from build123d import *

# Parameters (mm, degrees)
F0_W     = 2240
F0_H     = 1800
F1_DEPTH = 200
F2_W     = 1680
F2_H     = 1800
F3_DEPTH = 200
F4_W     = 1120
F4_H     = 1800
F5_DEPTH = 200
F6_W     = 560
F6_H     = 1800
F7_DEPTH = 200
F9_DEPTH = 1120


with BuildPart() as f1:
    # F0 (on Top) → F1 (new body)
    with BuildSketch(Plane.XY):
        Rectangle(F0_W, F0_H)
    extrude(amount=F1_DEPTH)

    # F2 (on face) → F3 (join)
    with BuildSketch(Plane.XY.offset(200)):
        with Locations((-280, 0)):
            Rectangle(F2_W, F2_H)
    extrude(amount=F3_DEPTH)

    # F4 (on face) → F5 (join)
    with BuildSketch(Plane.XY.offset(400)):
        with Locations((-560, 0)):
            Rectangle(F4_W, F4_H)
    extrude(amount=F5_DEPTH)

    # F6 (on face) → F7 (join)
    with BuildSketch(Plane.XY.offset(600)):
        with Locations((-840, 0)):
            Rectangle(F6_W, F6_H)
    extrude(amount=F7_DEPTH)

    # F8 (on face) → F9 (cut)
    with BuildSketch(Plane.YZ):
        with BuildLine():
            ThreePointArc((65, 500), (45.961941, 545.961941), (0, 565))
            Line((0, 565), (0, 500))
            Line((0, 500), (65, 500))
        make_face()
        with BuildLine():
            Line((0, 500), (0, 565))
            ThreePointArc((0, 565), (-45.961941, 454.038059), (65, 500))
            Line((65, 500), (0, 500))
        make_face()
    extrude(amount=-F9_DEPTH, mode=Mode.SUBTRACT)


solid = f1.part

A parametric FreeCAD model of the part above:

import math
import FreeCAD as App
import Part
import Sketcher

V = App.Vector


def add_polygon(sketch, points):
    """Adds a closed chain of lines whose ends are joined by coincident constraints."""
    first, n = sketch.GeometryCount, len(points)
    for a, b in zip(points, points[1:] + points[:1]):
        sketch.addGeometry(Part.LineSegment(App.Vector(*a, 0), App.Vector(*b, 0)), False)
    for i in range(n):
        sketch.addConstraint(Sketcher.Constraint("Coincident", first + i, 2, first + (i + 1) % n, 1))

doc = App.newDocument("Part")
body = doc.addObject("PartDesign::Body", "Body")

sketch1 = doc.addObject("Sketcher::SketchObject", "Sketch")
body.addObject(sketch1)
sketch1.AttachmentSupport = (doc.XY_Plane, [""])
sketch1.MapMode = "FlatFace"
add_polygon(sketch1, [(-1120, 900), (-1120, -900), (1120, -900), (1120, 900)])
sketch1.addConstraint([
    Sketcher.Constraint("Vertical", 0),
    Sketcher.Constraint("Horizontal", 1),
    Sketcher.Constraint("Vertical", 2),
    Sketcher.Constraint("Horizontal", 3),
    Sketcher.Constraint("Symmetric", 0, 2, 2, 2, -1, 1),
    Sketcher.Constraint("DistanceX", 1, 1, 1, 2, 2240.0),
    Sketcher.Constraint("DistanceY", 0, 2, 0, 1, 1800.0),
])
pad1 = doc.addObject("PartDesign::Pad", "Pad")
body.addObject(pad1)
pad1.Profile = sketch1
pad1.Length = 200

sketch2 = doc.addObject("Sketcher::SketchObject", "Sketch001")
body.addObject(sketch2)
sketch2.AttachmentSupport = (doc.XY_Plane, [""])
sketch2.MapMode = "FlatFace"
sketch2.AttachmentOffset = App.Placement(V(0, 0, 200), App.Rotation())
add_polygon(sketch2, [(-1120, 900), (-1120, -900), (560, -900), (560, 900)])
sketch2.addConstraint([
    Sketcher.Constraint("Vertical", 0),
    Sketcher.Constraint("Horizontal", 1),
    Sketcher.Constraint("Vertical", 2),
    Sketcher.Constraint("Horizontal", 3),
    Sketcher.Constraint("DistanceX", 1, 1, 1, 2, 1680.0),
    Sketcher.Constraint("DistanceY", 0, 2, 0, 1, 1800.0),
    Sketcher.Constraint("DistanceX", 0, 2, -1, 1, 1120.0),
    Sketcher.Constraint("DistanceY", 0, 2, -1, 1, 900.0),
])
pad2 = doc.addObject("PartDesign::Pad", "Pad001")
body.addObject(pad2)
pad2.Profile = sketch2
pad2.Length = 200

sketch3 = doc.addObject("Sketcher::SketchObject", "Sketch002")
body.addObject(sketch3)
sketch3.AttachmentSupport = (doc.XY_Plane, [""])
sketch3.MapMode = "FlatFace"
sketch3.AttachmentOffset = App.Placement(V(0, 0, 400), App.Rotation())
add_polygon(sketch3, [(-1120, 900), (-1120, -900), (0, -900), (0, 900)])
sketch3.addConstraint([
    Sketcher.Constraint("Vertical", 0),
    Sketcher.Constraint("Horizontal", 1),
    Sketcher.Constraint("Vertical", 2),
    Sketcher.Constraint("Horizontal", 3),
    Sketcher.Constraint("Symmetric", 1, 2, 2, 2, -1, 1),
    Sketcher.Constraint("DistanceX", 1, 1, 1, 2, 1120.0),
    Sketcher.Constraint("DistanceY", 0, 2, 0, 1, 1800.0),
])
pad3 = doc.addObject("PartDesign::Pad", "Pad002")
body.addObject(pad3)
pad3.Profile = sketch3
pad3.Length = 200

sketch4 = doc.addObject("Sketcher::SketchObject", "Sketch003")
body.addObject(sketch4)
sketch4.AttachmentSupport = (doc.XY_Plane, [""])
sketch4.MapMode = "FlatFace"
sketch4.AttachmentOffset = App.Placement(V(0, 0, 600), App.Rotation())
add_polygon(sketch4, [(-1120, 900), (-1120, -900), (-560, -900), (-560, 900)])
sketch4.addConstraint([
    Sketcher.Constraint("Vertical", 0),
    Sketcher.Constraint("Horizontal", 1),
    Sketcher.Constraint("Vertical", 2),
    Sketcher.Constraint("Horizontal", 3),
    Sketcher.Constraint("DistanceX", 1, 1, 1, 2, 560.0),
    Sketcher.Constraint("DistanceY", 0, 2, 0, 1, 1800.0),
    Sketcher.Constraint("DistanceX", 0, 2, -1, 1, 1120.0),
    Sketcher.Constraint("DistanceY", 0, 2, -1, 1, 900.0),
])
pad4 = doc.addObject("PartDesign::Pad", "Pad003")
body.addObject(pad4)
pad4.Profile = sketch4
pad4.Length = 200

sketch5 = doc.addObject("Sketcher::SketchObject", "Sketch004")
body.addObject(sketch5)
sketch5.AttachmentSupport = (doc.YZ_Plane, [""])
sketch5.MapMode = "FlatFace"
sketch5.addGeometry([
    Part.ArcOfCircle(Part.Circle(V(0.000001, 500.000001, 0), V(0, 0, 1), 64.999999), math.radians(-0.000001), math.radians(90.000001)),
    Part.ArcOfCircle(Part.Circle(V(0, 500, 0), V(0, 0, 1), 65), math.radians(90), math.radians(360)),
], False)
sketch5.addConstraint([
    Sketcher.Constraint("Tangent", 0, 1, 1, 2),
    Sketcher.Constraint("Coincident", 1, 1, 0, 2),
    Sketcher.Constraint("PointOnObject", 0, 3, -2),
    Sketcher.Constraint("PointOnObject", 1, 1, -2),
    Sketcher.Constraint("Horizontal", 1, 3, 0, 1),
    Sketcher.Constraint("Radius", 0, 64.999999),
    Sketcher.Constraint("DistanceY", -1, 1, 0, 3, 500.000001),
])
pocket1 = doc.addObject("PartDesign::Pocket", "Pocket")
body.addObject(pocket1)
pocket1.Profile = sketch5
pocket1.Length = 1120

doc.recompute()
